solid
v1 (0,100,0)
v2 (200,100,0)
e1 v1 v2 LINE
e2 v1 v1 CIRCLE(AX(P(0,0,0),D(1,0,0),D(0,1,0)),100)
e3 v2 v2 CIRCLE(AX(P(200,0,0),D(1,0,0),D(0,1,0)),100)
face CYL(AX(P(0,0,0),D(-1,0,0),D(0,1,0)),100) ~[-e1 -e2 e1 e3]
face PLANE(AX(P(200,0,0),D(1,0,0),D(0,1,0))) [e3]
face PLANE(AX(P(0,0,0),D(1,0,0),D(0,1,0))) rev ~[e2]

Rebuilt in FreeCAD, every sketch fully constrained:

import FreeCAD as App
import Part
import Sketcher

V = App.Vector
Q = App.Units.Quantity

doc = App.newDocument("Part")
body = doc.addObject("PartDesign::Body", "Body")

sketch1 = doc.addObject("Sketcher::SketchObject", "Sketch")
body.addObject(sketch1)
sketch1.AttachmentSupport = (doc.YZ_Plane, [""])
sketch1.MapMode = "FlatFace"
sketch1.addGeometry(Part.Circle(V(0, 0, 0), V(0, 0, 1), 100), False)
sketch1.addConstraint(Sketcher.Constraint("Coincident", 0, 3, -1, 1))
sketch1.addConstraint(Sketcher.Constraint("Diameter", 0, Q("200 mm")))
pad1 = doc.addObject("PartDesign::Pad", "Pad")
body.addObject(pad1)
pad1.Profile = sketch1
pad1.Length = 200

doc.recompute()
